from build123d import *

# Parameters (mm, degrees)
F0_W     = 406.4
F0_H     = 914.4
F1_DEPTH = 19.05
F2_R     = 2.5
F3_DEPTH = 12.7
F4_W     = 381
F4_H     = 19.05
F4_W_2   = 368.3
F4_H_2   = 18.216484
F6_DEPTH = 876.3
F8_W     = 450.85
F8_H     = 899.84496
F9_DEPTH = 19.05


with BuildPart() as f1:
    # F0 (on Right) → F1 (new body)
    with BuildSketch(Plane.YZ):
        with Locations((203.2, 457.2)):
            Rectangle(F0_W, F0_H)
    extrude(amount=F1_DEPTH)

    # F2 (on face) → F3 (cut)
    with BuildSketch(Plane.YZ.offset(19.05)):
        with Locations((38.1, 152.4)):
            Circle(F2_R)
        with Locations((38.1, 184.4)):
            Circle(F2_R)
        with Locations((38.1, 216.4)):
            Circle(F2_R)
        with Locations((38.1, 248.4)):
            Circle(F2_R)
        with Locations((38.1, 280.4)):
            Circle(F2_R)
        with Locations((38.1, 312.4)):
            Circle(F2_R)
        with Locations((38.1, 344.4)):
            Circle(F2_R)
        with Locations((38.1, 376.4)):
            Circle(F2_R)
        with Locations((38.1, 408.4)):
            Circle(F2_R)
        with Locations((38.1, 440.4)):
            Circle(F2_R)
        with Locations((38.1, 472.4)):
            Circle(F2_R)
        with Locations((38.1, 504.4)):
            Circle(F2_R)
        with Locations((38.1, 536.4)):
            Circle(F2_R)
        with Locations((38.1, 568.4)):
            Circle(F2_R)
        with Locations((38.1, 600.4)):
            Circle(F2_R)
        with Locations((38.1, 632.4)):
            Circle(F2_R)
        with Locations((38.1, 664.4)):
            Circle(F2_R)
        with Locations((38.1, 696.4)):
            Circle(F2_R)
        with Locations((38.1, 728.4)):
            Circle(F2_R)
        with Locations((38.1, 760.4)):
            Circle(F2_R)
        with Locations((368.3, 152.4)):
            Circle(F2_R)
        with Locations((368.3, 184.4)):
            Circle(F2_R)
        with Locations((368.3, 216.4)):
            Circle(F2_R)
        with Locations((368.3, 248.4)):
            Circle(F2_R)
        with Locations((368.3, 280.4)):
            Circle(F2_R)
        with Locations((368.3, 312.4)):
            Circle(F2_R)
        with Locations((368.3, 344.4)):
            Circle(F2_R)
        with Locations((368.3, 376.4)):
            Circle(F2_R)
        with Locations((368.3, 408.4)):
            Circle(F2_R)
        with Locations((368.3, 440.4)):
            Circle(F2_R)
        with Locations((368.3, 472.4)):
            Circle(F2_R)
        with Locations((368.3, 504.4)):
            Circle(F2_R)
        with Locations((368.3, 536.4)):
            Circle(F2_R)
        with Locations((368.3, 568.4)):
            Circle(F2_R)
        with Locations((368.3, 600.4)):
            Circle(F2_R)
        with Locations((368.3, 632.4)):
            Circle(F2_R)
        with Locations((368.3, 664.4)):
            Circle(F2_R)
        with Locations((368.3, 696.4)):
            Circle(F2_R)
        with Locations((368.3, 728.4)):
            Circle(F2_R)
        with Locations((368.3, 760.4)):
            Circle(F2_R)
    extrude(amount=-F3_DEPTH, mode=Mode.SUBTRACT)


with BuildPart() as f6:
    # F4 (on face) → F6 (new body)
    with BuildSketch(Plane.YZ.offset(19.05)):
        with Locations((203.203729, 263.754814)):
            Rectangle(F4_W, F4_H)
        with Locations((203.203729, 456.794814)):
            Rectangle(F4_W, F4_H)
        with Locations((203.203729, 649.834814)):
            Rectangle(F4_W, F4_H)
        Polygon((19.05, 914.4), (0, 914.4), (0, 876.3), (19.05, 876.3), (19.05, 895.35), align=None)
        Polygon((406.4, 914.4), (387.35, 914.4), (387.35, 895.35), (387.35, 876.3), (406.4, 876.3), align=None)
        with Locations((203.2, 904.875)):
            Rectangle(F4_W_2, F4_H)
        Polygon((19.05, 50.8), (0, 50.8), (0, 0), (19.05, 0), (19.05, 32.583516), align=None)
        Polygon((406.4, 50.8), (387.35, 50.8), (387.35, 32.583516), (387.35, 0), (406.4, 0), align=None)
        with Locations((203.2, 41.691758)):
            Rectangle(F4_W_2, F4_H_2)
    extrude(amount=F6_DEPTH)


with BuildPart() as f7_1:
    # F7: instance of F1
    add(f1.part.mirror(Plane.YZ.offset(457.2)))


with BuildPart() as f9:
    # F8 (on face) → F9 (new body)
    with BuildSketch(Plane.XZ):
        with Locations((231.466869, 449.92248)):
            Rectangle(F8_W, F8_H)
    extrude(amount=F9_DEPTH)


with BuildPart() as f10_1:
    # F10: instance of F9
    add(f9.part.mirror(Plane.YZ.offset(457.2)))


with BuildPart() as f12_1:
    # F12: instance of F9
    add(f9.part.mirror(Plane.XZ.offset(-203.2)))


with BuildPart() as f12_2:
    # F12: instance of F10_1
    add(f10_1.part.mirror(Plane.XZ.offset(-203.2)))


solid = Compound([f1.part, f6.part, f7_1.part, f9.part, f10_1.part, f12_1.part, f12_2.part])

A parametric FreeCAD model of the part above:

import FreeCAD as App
import Part
import Sketcher
from FreeCAD import Vector
Q = App.Units.Quantity

doc = App.newDocument("Part")
body = doc.addObject("PartDesign::Body", "Body")

# Sketch on YZ plane
sketch1 = doc.addObject("Sketcher::SketchObject", "Sketch")
body.addObject(sketch1)
sketch1.AttachmentSupport = (doc.YZ_Plane, [""])
sketch1.MapMode = "FlatFace"
sketch1.addGeometry(Part.LineSegment(Vector(0, 914, 0), Vector(0, 0, 0)), False)
sketch1.addGeometry(Part.LineSegment(Vector(0, 0, 0), Vector(406, 0, 0)), False)
sketch1.addGeometry(Part.LineSegment(Vector(406, 0, 0), Vector(406, 914, 0)), False)
sketch1.addGeometry(Part.LineSegment(Vector(406, 914, 0), Vector(0, 914, 0)), False)
sketch1.addConstraint(Sketcher.Constraint("Coincident", 0, 2, 1, 1))
sketch1.addConstraint(Sketcher.Constraint("Coincident", 1, 2, 2, 1))
sketch1.addConstraint(Sketcher.Constraint("Coincident", 2, 2, 3, 1))
sketch1.addConstraint(Sketcher.Constraint("Coincident", 3, 2, 0, 1))
sketch1.addConstraint(Sketcher.Constraint("Vertical", 0))
sketch1.addConstraint(Sketcher.Constraint("Horizontal", 1))
sketch1.addConstraint(Sketcher.Constraint("Vertical", 2))
sketch1.addConstraint(Sketcher.Constraint("Horizontal", 3))
sketch1.addConstraint(Sketcher.Constraint("Coincident", 0, 2, -1, 1))
sketch1.addConstraint(Sketcher.Constraint("DistanceX", 1, 1, 1, 2, Q("16 in")))
sketch1.addConstraint(Sketcher.Constraint("DistanceY", 0, 2, 0, 1, Q("36 in")))
pad1 = doc.addObject("PartDesign::Pad", "Pad")
body.addObject(pad1)
pad1.Profile = sketch1
pad1.Length = Q("0.75 in")

# Sketch on YZ plane
sketch2 = doc.addObject("Sketcher::SketchObject", "Sketch001")
body.addObject(sketch2)
sketch2.AttachmentSupport = (doc.YZ_Plane, [""])
sketch2.MapMode = "FlatFace"
sketch2.AttachmentOffset = App.Placement(Vector(0, 0, 0.75 * 25.4), App.Rotation())
sketch2.addGeometry(Part.Circle(Vector(38.1, 152.4, 0), Vector(0, 0, 1), 2.5), False)
sketch2.addGeometry(Part.Circle(Vector(38.1, 184.4, 0), Vector(0, 0, 1), 2.5), False)
sketch2.addGeometry(Part.Circle(Vector(38.1, 216.4, 0), Vector(0, 0, 1), 2.5), False)
sketch2.addGeometry(Part.Circle(Vector(38.1, 248.4, 0), Vector(0, 0, 1), 2.5), False)
sketch2.addGeometry(Part.Circle(Vector(38.1, 280.4, 0), Vector(0, 0, 1), 2.5), False)
sketch2.addGeometry(Part.Circle(Vector(38.1, 312.4, 0), Vector(0, 0, 1), 2.5), False)
sketch2.addGeometry(Part.Circle(Vector(38.1, 344.4, 0), Vector(0, 0, 1), 2.5), False)
sketch2.addGeometry(Part.Circle(Vector(38.1, 376.4, 0), Vector(0, 0, 1), 2.5), False)
sketch2.addGeometry(Part.Circle(Vector(38.1, 408.4, 0), Vector(0, 0, 1), 2.5), False)
sketch2.addGeometry(Part.Circle(Vector(38.1, 440.4, 0), Vector(0, 0, 1), 2.5), False)
sketch2.addGeometry(Part.Circle(Vector(38.1, 472.4, 0), Vector(0, 0, 1), 2.5), False)
sketch2.addGeometry(Part.Circle(Vector(38.1, 504.4, 0), Vector(0, 0, 1), 2.5), False)
sketch2.addGeometry(Part.Circle(Vector(38.1, 536.4, 0), Vector(0, 0, 1), 2.5), False)
sketch2.addGeometry(Part.Circle(Vector(38.1, 568.4, 0), Vector(0, 0, 1), 2.5), False)
sketch2.addGeometry(Part.Circle(Vector(38.1, 600.4, 0), Vector(0, 0, 1), 2.5), False)
sketch2.addGeometry(Part.Circle(Vector(38.1, 632.4, 0), Vector(0, 0, 1), 2.5), False)
sketch2.addGeometry(Part.Circle(Vector(38.1, 664.4, 0), Vector(0, 0, 1), 2.5), False)
sketch2.addGeometry(Part.Circle(Vector(38.1, 696.4, 0), Vector(0, 0, 1), 2.5), False)
sketch2.addGeometry(Part.Circle(Vector(38.1, 728.4, 0), Vector(0, 0, 1), 2.5), False)
sketch2.addGeometry(Part.Circle(Vector(38.1, 760.4, 0), Vector(0, 0, 1), 2.5), False)
sketch2.addGeometry(Part.Circle(Vector(368.3, 152.4, 0), Vector(0, 0, 1), 2.5), False)
sketch2.addGeometry(Part.Circle(Vector(368.3, 184.4, 0), Vector(0, 0, 1), 2.5), False)
sketch2.addGeometry(Part.Circle(Vector(368.3, 216.4, 0), Vector(0, 0, 1), 2.5), False)
sketch2.addGeometry(Part.Circle(Vector(368.3, 248.4, 0), Vector(0, 0, 1), 2.5), False)
sketch2.addGeometry(Part.Circle(Vector(368.3, 280.4, 0), Vector(0, 0, 1), 2.5), False)
sketch2.addGeometry(Part.Circle(Vector(368.3, 312.4, 0), Vector(0, 0, 1), 2.5), False)
sketch2.addGeometry(Part.Circle(Vector(368.3, 344.4, 0), Vector(0, 0, 1), 2.5), False)
sketch2.addGeometry(Part.Circle(Vector(368.3, 376.4, 0), Vector(0, 0, 1), 2.5), False)
sketch2.addGeometry(Part.Circle(Vector(368.3, 408.4, 0), Vector(0, 0, 1), 2.5), False)
sketch2.addGeometry(Part.Circle(Vector(368.3, 440.4, 0), Vector(0, 0, 1), 2.5), False)
sketch2.addGeometry(Part.Circle(Vector(368.3, 472.4, 0), Vector(0, 0, 1), 2.5), False)
sketch2.addGeometry(Part.Circle(Vector(368.3, 504.4, 0), Vector(0, 0, 1), 2.5), False)
sketch2.addGeometry(Part.Circle(Vector(368.3, 536.4, 0), Vector(0, 0, 1), 2.5), False)
sketch2.addGeometry(Part.Circle(Vector(368.3, 568.4, 0), Vector(0, 0, 1), 2.5), False)
sketch2.addGeometry(Part.Circle(Vector(368.3, 600.4, 0), Vector(0, 0, 1), 2.5), False)
sketch2.addGeometry(Part.Circle(Vector(368.3, 632.4, 0), Vector(0, 0, 1), 2.5), False)
sketch2.addGeometry(Part.Circle(Vector(368.3, 664.4, 0), Vector(0, 0, 1), 2.5), False)
sketch2.addGeometry(Part.Circle(Vector(368.3, 696.4, 0), Vector(0, 0, 1), 2.5), False)
sketch2.addGeometry(Part.Circle(Vector(368.3, 728.4, 0), Vector(0, 0, 1), 2.5), False)
sketch2.addGeometry(Part.Circle(Vector(368.3, 760.4, 0), Vector(0, 0, 1), 2.5), False)
sketch2.addConstraint(Sketcher.Constraint("Equal", 0, 1))
sketch2.addConstraint(Sketcher.Constraint("Equal", 1, 2))
sketch2.addConstraint(Sketcher.Constraint("Equal", 2, 3))
sketch2.addConstraint(Sketcher.Constraint("Equal", 3, 4))
sketch2.addConstraint(Sketcher.Constraint("Equal", 4, 5))
sketch2.addConstraint(Sketcher.Constraint("Equal", 5, 6))
sketch2.addConstraint(Sketcher.Constraint("Equal", 6, 7))
sketch2.addConstraint(Sketcher.Constraint("Equal", 7, 8))
sketch2.addConstraint(Sketcher.Constraint("Equal", 8, 9))
sketch2.addConstraint(Sketcher.Constraint("Equal", 9, 10))
sketch2.addConstraint(Sketcher.Constraint("Equal", 10, 11))
sketch2.addConstraint(Sketcher.Constraint("Equal", 11, 12))
sketch2.addConstraint(Sketcher.Constraint("Equal", 12, 13))
sketch2.addConstraint(Sketcher.Constraint("Equal", 13, 14))
sketch2.addConstraint(Sketcher.Constraint("Equal", 14, 15))
sketch2.addConstraint(Sketcher.Constraint("Equal", 15, 16))
sketch2.addConstraint(Sketcher.Constraint("Equal", 16, 17))
sketch2.addConstraint(Sketcher.Constraint("Equal", 17, 18))
sketch2.addConstraint(Sketcher.Constraint("Equal", 18, 19))
sketch2.addConstraint(Sketcher.Constraint("Equal", 19, 20))
sketch2.addConstraint(Sketcher.Constraint("Equal", 20, 21))
sketch2.addConstraint(Sketcher.Constraint("Equal", 21, 22))
sketch2.addConstraint(Sketcher.Constraint("Equal", 22, 23))
sketch2.addConstraint(Sketcher.Constraint("Equal", 23, 24))
sketch2.addConstraint(Sketcher.Constraint("Equal", 24, 25))
sketch2.addConstraint(Sketcher.Constraint("Equal", 25, 26))
sketch2.addConstraint(Sketcher.Constraint("Equal", 26, 27))
sketch2.addConstraint(Sketcher.Constraint("Equal", 27, 28))
sketch2.addConstraint(Sketcher.Constraint("Equal", 28, 29))
sketch2.addConstraint(Sketcher.Constraint("Equal", 29, 30))
sketch2.addConstraint(Sketcher.Constraint("Equal", 30, 31))
sketch2.addConstraint(Sketcher.Constraint("Equal", 31, 32))
sketch2.addConstraint(Sketcher.Constraint("Equal", 32, 33))
sketch2.addConstraint(Sketcher.Constraint("Equal", 33, 34))
sketch2.addConstraint(Sketcher.Constraint("Equal", 34, 35))
sketch2.addConstraint(Sketcher.Constraint("Equal", 35, 36))
sketch2.addConstraint(Sketcher.Constraint("Equal", 36, 37))
sketch2.addConstraint(Sketcher.Constraint("Equal", 37, 38))
sketch2.addConstraint(Sketcher.Constraint("Equal", 38, 39))
sketch2.addConstraint(Sketcher.Constraint("Horizontal", 0, 3, 20, 3))
sketch2.addConstraint(Sketcher.Constraint("Horizontal", 1, 3, 21, 3))
sketch2.addConstraint(Sketcher.Constraint("Horizontal", 2, 3, 22, 3))
sketch2.addConstraint(Sketcher.Constraint("Horizontal", 3, 3, 23, 3))
sketch2.addConstraint(Sketcher.Constraint("Horizontal", 4, 3, 24, 3))
sketch2.addConstraint(Sketcher.Constraint("Horizontal", 5, 3, 25, 3))
sketch2.addConstraint(Sketcher.Constraint("Horizontal", 6, 3, 26, 3))
sketch2.addConstraint(Sketcher.Constraint("Horizontal", 7, 3, 27, 3))
sketch2.addConstraint(Sketcher.Constraint("Horizontal", 8, 3, 28, 3))
sketch2.addConstraint(Sketcher.Constraint("Horizontal", 9, 3, 29, 3))
sketch2.addConstraint(Sketcher.Constraint("Horizontal", 10, 3, 30, 3))
sketch2.addConstraint(Sketcher.Constraint("Horizontal", 11, 3, 31, 3))
sketch2.addConstraint(Sketcher.Constraint("Horizontal", 12, 3, 32, 3))
sketch2.addConstraint(Sketcher.Constraint("Horizontal", 13, 3, 33, 3))
sketch2.addConstraint(Sketcher.Constraint("Horizontal", 14, 3, 34, 3))
sketch2.addConstraint(Sketcher.Constraint("Horizontal", 15, 3, 35, 3))
sketch2.addConstraint(Sketcher.Constraint("Horizontal", 16, 3, 36, 3))
sketch2.addConstraint(Sketcher.Constraint("Horizontal", 17, 3, 37, 3))
sketch2.addConstraint(Sketcher.Constraint("Horizontal", 18, 3, 38, 3))
sketch2.addConstraint(Sketcher.Constraint("Horizontal", 19, 3, 39, 3))
sketch2.addConstraint(Sketcher.Constraint("Vertical", 0, 3, 1, 3))
sketch2.addConstraint(Sketcher.Constraint("Vertical", 1, 3, 2, 3))
sketch2.addConstraint(Sketcher.Constraint("Vertical", 2, 3, 3, 3))
sketch2.addConstraint(Sketcher.Constraint("Vertical", 3, 3, 4, 3))
sketch2.addConstraint(Sketcher.Constraint("Vertical", 4, 3, 5, 3))
sketch2.addConstraint(Sketcher.Constraint("Vertical", 5, 3, 6, 3))
sketch2.addConstraint(Sketcher.Constraint("Vertical", 6, 3, 7, 3))
sketch2.addConstraint(Sketcher.Constraint("Vertical", 7, 3, 8, 3))
sketch2.addConstraint(Sketcher.Constraint("Vertical", 8, 3, 9, 3))
sketch2.addConstraint(Sketcher.Constraint("Vertical", 9, 3, 10, 3))
sketch2.addConstraint(Sketcher.Constraint("Vertical", 10, 3, 11, 3))
sketch2.addConstraint(Sketcher.Constraint("Vertical", 11, 3, 12, 3))
sketch2.addConstraint(Sketcher.Constraint("Vertical", 12, 3, 13, 3))
sketch2.addConstraint(Sketcher.Constraint("Vertical", 13, 3, 14, 3))
sketch2.addConstraint(Sketcher.Constraint("Vertical", 14, 3, 15, 3))
sketch2.addConstraint(Sketcher.Constraint("Vertical", 15, 3, 16, 3))
sketch2.addConstraint(Sketcher.Constraint("Vertical", 16, 3, 17, 3))
sketch2.addConstraint(Sketcher.Constraint("Vertical", 17, 3, 18, 3))
sketch2.addConstraint(Sketcher.Constraint("Vertical", 18, 3, 19, 3))
sketch2.addConstraint(Sketcher.Constraint("Vertical", 20, 3, 21, 3))
sketch2.addConstraint(Sketcher.Constraint("Vertical", 21, 3, 22, 3))
sketch2.addConstraint(Sketcher.Constraint("Vertical", 22, 3, 23, 3))
sketch2.addConstraint(Sketcher.Constraint("Vertical", 23, 3, 24, 3))
sketch2.addConstraint(Sketcher.Constraint("Vertical", 24, 3, 25, 3))
sketch2.addConstraint(Sketcher.Constraint("Vertical", 25, 3, 26, 3))
sketch2.addConstraint(Sketcher.Constraint("Vertical", 26, 3, 27, 3))
sketch2.addConstraint(Sketcher.Constraint("Vertical", 27, 3, 28, 3))
sketch2.addConstraint(Sketcher.Constraint("Vertical", 28, 3, 29, 3))
sketch2.addConstraint(Sketcher.Constraint("Vertical", 29, 3, 30, 3))
sketch2.addConstraint(Sketcher.Constraint("Vertical", 30, 3, 31, 3))
sketch2.addConstraint(Sketcher.Constraint("Vertical", 31, 3, 32, 3))
sketch2.addConstraint(Sketcher.Constraint("Vertical", 32, 3, 33, 3))
sketch2.addConstraint(Sketcher.Constraint("Vertical", 33, 3, 34, 3))
sketch2.addConstraint(Sketcher.Constraint("Vertical", 34, 3, 35, 3))
sketch2.addConstraint(Sketcher.Constraint("Vertical", 35, 3, 36, 3))
sketch2.addConstraint(Sketcher.Constraint("Vertical", 36, 3, 37, 3))
sketch2.addConstraint(Sketcher.Constraint("Vertical", 37, 3, 38, 3))
sketch2.addConstraint(Sketcher.Constraint("Vertical", 38, 3, 39, 3))
sketch2.addConstraint(Sketcher.Constraint("DistanceY", -1, 1, 0, 3, Q("6 in")))
sketch2.addConstraint(Sketcher.Constraint("DistanceX", 0, 3, 20, 3, Q("13 in")))
sketch2.addConstraint(Sketcher.Constraint("DistanceX", -1, 1, 0, 3, Q("1.5 in")))
sketch2.addConstraint(Sketcher.Constraint("Diameter", 0, 5.0))
sketch2.addConstraint(Sketcher.Constraint("DistanceY", -1, 1, 1, 3, 184.4))
sketch2.addConstraint(Sketcher.Constraint("DistanceY", -1, 1, 2, 3, 216.4))
sketch2.addConstraint(Sketcher.Constraint("DistanceY", -1, 1, 3, 3, 248.4))
sketch2.addConstraint(Sketcher.Constraint("DistanceY", -1, 1, 4, 3, 280.4))
sketch2.addConstraint(Sketcher.Constraint("DistanceY", -1, 1, 5, 3, 312.4))
sketch2.addConstraint(Sketcher.Constraint("DistanceY", -1, 1, 6, 3, 344.4))
sketch2.addConstraint(Sketcher.Constraint("DistanceY", -1, 1, 7, 3, 376.4))
sketch2.addConstraint(Sketcher.Constraint("DistanceY", -1, 1, 8, 3, 408.4))
sketch2.addConstraint(Sketcher.Constraint("DistanceY", -1, 1, 9, 3, 440.4))
sketch2.addConstraint(Sketcher.Constraint("DistanceY", -1, 1, 10, 3, 472.4))
sketch2.addConstraint(Sketcher.Constraint("DistanceY", -1, 1, 11, 3, 504.4))
sketch2.addConstraint(Sketcher.Constraint("DistanceY", -1, 1, 12, 3, 536.4))
sketch2.addConstraint(Sketcher.Constraint("DistanceY", -1, 1, 13, 3, 568.4))
sketch2.addConstraint(Sketcher.Constraint("DistanceY", -1, 1, 14, 3, 600.4))
sketch2.addConstraint(Sketcher.Constraint("DistanceY", -1, 1, 15, 3, 632.4))
sketch2.addConstraint(Sketcher.Constraint("DistanceY", -1, 1, 16, 3, 664.4))
sketch2.addConstraint(Sketcher.Constraint("DistanceY", -1, 1, 17, 3, 696.4))
sketch2.addConstraint(Sketcher.Constraint("DistanceY", -1, 1, 18, 3, 728.4))
sketch2.addConstraint(Sketcher.Constraint("DistanceY", -1, 1, 19, 3, 760.4))
pocket1 = doc.addObject("PartDesign::Pocket", "Pocket")
body.addObject(pocket1)
pocket1.Profile = sketch2
pocket1.Length = Q("0.5 in")
body2 = doc.addObject("PartDesign::Body", "Body001")
body2.AllowCompound = True

# Sketch on YZ plane
sketch3 = doc.addObject("Sketcher::SketchObject", "Sketch002")
body2.addObject(sketch3)
sketch3.AttachmentSupport = (doc.getObject("YZ_Plane001"), [""])
sketch3.MapMode = "FlatFace"
sketch3.AttachmentOffset = App.Placement(Vector(0, 0, 0.75 * 25.4), App.Rotation())
sketch3.addGeometry(Part.LineSegment(Vector(13, 273, 0), Vector(13, 254, 0)), False)
sketch3.addGeometry(Part.LineSegment(Vector(13, 254, 0), Vector(394, 254, 0)), False)
sketch3.addGeometry(Part.LineSegment(Vector(394, 254, 0), Vector(394, 273, 0)), False)
sketch3.addGeometry(Part.LineSegment(Vector(394, 273, 0), Vector(13, 273, 0)), False)
sketch3.addGeometry(Part.LineSegment(Vector(13, 466, 0), Vector(13, 447, 0)), False)
sketch3.addGeometry(Part.LineSegment(Vector(13, 447, 0), Vector(394, 447, 0)), False)
sketch3.addGeometry(Part.LineSegment(Vector(394, 447, 0), Vector(394, 466, 0)), False)
sketch3.addGeometry(Part.LineSegment(Vector(394, 466, 0), Vector(13, 466, 0)), False)
sketch3.addGeometry(Part.LineSegment(Vector(13, 659, 0), Vector(13, 640, 0)), False)
sketch3.addGeometry(Part.LineSegment(Vector(13, 640, 0), Vector(394, 640, 0)), False)
sketch3.addGeometry(Part.LineSegment(Vector(394, 640, 0), Vector(394, 659, 0)), False)
sketch3.addGeometry(Part.LineSegment(Vector(394, 659, 0), Vector(13, 659, 0)), False)
sketch3.addGeometry(Part.LineSegment(Vector(0, 914, 0), Vector(0, 876, 0)), False)
sketch3.addGeometry(Part.LineSegment(Vector(0, 876, 0), Vector(19, 876, 0)), False)
sketch3.addGeometry(Part.LineSegment(Vector(19, 876, 0), Vector(19, 895, 0)), False)
sketch3.addGeometry(Part.LineSegment(Vector(19, 895, 0), Vector(387, 895, 0)), False)
sketch3.addGeometry(Part.LineSegment(Vector(387, 895, 0), Vector(387, 876, 0)), False)
sketch3.addGeometry(Part.LineSegment(Vector(387, 876, 0), Vector(406, 876, 0)), False)
sketch3.addGeometry(Part.LineSegment(Vector(406, 876, 0), Vector(406, 914, 0)), False)
sketch3.addGeometry(Part.LineSegment(Vector(406, 914, 0), Vector(0, 914, 0)), False)
sketch3.addGeometry(Part.LineSegment(Vector(0, 51, 0), Vector(0, 0, 0)), False)
sketch3.addGeometry(Part.LineSegment(Vector(0, 0, 0), Vector(19, 0, 0)), False)
sketch3.addGeometry(Part.LineSegment(Vector(19, 0, 0), Vector(19, 33, 0)), False)
sketch3.addGeometry(Part.LineSegment(Vector(19, 33, 0), Vector(387, 33, 0)), False)
sketch3.addGeometry(Part.LineSegment(Vector(387, 33, 0), Vector(387, 0, 0)), False)
sketch3.addGeometry(Part.LineSegment(Vector(387, 0, 0), Vector(406, 0, 0)), False)
sketch3.addGeometry(Part.LineSegment(Vector(406, 0, 0), Vector(406, 51, 0)), False)
sketch3.addGeometry(Part.LineSegment(Vector(406, 51, 0), Vector(0, 51, 0)), False)
sketch3.addConstraint(Sketcher.Constraint("Coincident", 0, 2, 1, 1))
sketch3.addConstraint(Sketcher.Constraint("Coincident", 1, 2, 2, 1))
sketch3.addConstraint(Sketcher.Constraint("Coincident", 2, 2, 3, 1))
sketch3.addConstraint(Sketcher.Constraint("Coincident", 3, 2, 0, 1))
sketch3.addConstraint(Sketcher.Constraint("Coincident", 4, 2, 5, 1))
sketch3.addConstraint(Sketcher.Constraint("Coincident", 5, 2, 6, 1))
sketch3.addConstraint(Sketcher.Constraint("Coincident", 6, 2, 7, 1))
sketch3.addConstraint(Sketcher.Constraint("Coincident", 7, 2, 4, 1))
sketch3.addConstraint(Sketcher.Constraint("Coincident", 8, 2, 9, 1))
sketch3.addConstraint(Sketcher.Constraint("Coincident", 9, 2, 10, 1))
sketch3.addConstraint(Sketcher.Constraint("Coincident", 10, 2, 11, 1))
sketch3.addConstraint(Sketcher.Constraint("Coincident", 11, 2, 8, 1))
sketch3.addConstraint(Sketcher.Constraint("Coincident", 12, 2, 13, 1))
sketch3.addConstraint(Sketcher.Constraint("Coincident", 13, 2, 14, 1))
sketch3.addConstraint(Sketcher.Constraint("Coincident", 14, 2, 15, 1))
sketch3.addConstraint(Sketcher.Constraint("Coincident", 15, 2, 16, 1))
sketch3.addConstraint(Sketcher.Constraint("Coincident", 16, 2, 17, 1))
sketch3.addConstraint(Sketcher.Constraint("Coincident", 17, 2, 18, 1))
sketch3.addConstraint(Sketcher.Constraint("Coincident", 18, 2, 19, 1))
sketch3.addConstraint(Sketcher.Constraint("Coincident", 19, 2, 12, 1))
sketch3.addConstraint(Sketcher.Constraint("Coincident", 20, 2, 21, 1))
sketch3.addConstraint(Sketcher.Constraint("Coincident", 21, 2, 22, 1))
sketch3.addConstraint(Sketcher.Constraint("Coincident", 22, 2, 23, 1))
sketch3.addConstraint(Sketcher.Constraint("Coincident", 23, 2, 24, 1))
sketch3.addConstraint(Sketcher.Constraint("Coincident", 24, 2, 25, 1))
sketch3.addConstraint(Sketcher.Constraint("Coincident", 25, 2, 26, 1))
sketch3.addConstraint(Sketcher.Constraint("Coincident", 26, 2, 27, 1))
sketch3.addConstraint(Sketcher.Constraint("Coincident", 27, 2, 20, 1))
sketch3.addConstraint(Sketcher.Constraint("Vertical", 0))
sketch3.addConstraint(Sketcher.Constraint("Horizontal", 1))
sketch3.addConstraint(Sketcher.Constraint("Vertical", 2))
sketch3.addConstraint(Sketcher.Constraint("Horizontal", 3))
sketch3.addConstraint(Sketcher.Constraint("Vertical", 4))
sketch3.addConstraint(Sketcher.Constraint("Horizontal", 5))
sketch3.addConstraint(Sketcher.Constraint("Vertical", 6))
sketch3.addConstraint(Sketcher.Constraint("Horizontal", 7))
sketch3.addConstraint(Sketcher.Constraint("Vertical", 8))
sketch3.addConstraint(Sketcher.Constraint("Horizontal", 9))
sketch3.addConstraint(Sketcher.Constraint("Vertical", 10))
sketch3.addConstraint(Sketcher.Constraint("Horizontal", 11))
sketch3.addConstraint(Sketcher.Constraint("Vertical", 12))
sketch3.addConstraint(Sketcher.Constraint("Horizontal", 13))
sketch3.addConstraint(Sketcher.Constraint("Vertical", 14))
sketch3.addConstraint(Sketcher.Constraint("Horizontal", 15))
sketch3.addConstraint(Sketcher.Constraint("Vertical", 16))
sketch3.addConstraint(Sketcher.Constraint("Horizontal", 17))
sketch3.addConstraint(Sketcher.Constraint("Vertical", 18))
sketch3.addConstraint(Sketcher.Constraint("Horizontal", 19))
sketch3.addConstraint(Sketcher.Constraint("Vertical", 20))
sketch3.addConstraint(Sketcher.Constraint("Horizontal", 21))
sketch3.addConstraint(Sketcher.Constraint("Vertical", 22))
sketch3.addConstraint(Sketcher.Constraint("Horizontal", 23))
sketch3.addConstraint(Sketcher.Constraint("Vertical", 24))
sketch3.addConstraint(Sketcher.Constraint("Horizontal", 25))
sketch3.addConstraint(Sketcher.Constraint("Vertical", 26))
sketch3.addConstraint(Sketcher.Constraint("Horizontal", 27))
sketch3.addConstraint(Sketcher.Constraint("Coincident", 20, 2, -1, 1))
sketch3.addConstraint(Sketcher.Constraint("PointOnObject", 12, 2, -2))
sketch3.addConstraint(Sketcher.Constraint("PointOnObject", 24, 2, -1))
sketch3.addConstraint(Sketcher.Constraint("Horizontal", 13, 2, 16, 2))
sketch3.addConstraint(Sketcher.Constraint("Vertical", 3, 2, 4, 2))
sketch3.addConstraint(Sketcher.Constraint("Vertical", 2, 2, 5, 2))
sketch3.addConstraint(Sketcher.Constraint("Vertical", 7, 2, 8, 2))
sketch3.addConstraint(Sketcher.Constraint("Vertical", 6, 2, 9, 2))
sketch3.addConstraint(Sketcher.Constraint("Vertical", 14, 2, 21, 2))
sketch3.addConstraint(Sketcher.Constraint("Vertical", 16, 2, 23, 2))
sketch3.addConstraint(Sketcher.Constraint("Vertical", 18, 2, 25, 2))
sketch3.addConstraint(Sketcher.Constraint("Equal", 13, 17))
sketch3.addConstraint(Sketcher.Constraint("Equal", 25, 0))
sketch3.addConstraint(Sketcher.Constraint("Equal", 2, 4))
sketch3.addConstraint(Sketcher.Constraint("Equal", 6, 8))
sketch3.addConstraint(Sketcher.Constraint("Equal", 10, 14))
sketch3.addConstraint(Sketcher.Constraint("DistanceX", 1, 1, 1, 2, Q("15 in")))
sketch3.addConstraint(Sketcher.Constraint("DistanceX", 19, 2, 19, 1, Q("16 in")))
sketch3.addConstraint(Sketcher.Constraint("DistanceY", 20, 2, 20, 1, Q("2 in")))
sketch3.addConstraint(Sketcher.Constraint("DistanceX", 15, 1, 15, 2, Q("14.5 in")))
sketch3.addConstraint(Sketcher.Constraint("DistanceY", 12, 2, 12, 1, Q("1.5 in")))
sketch3.addConstraint(Sketcher.Constraint("DistanceY", -1, 1, 18, 2, Q("36 in")))
sketch3.addConstraint(Sketcher.Constraint("DistanceY", 0, 2, 4, 2, Q("7.6 in")))
sketch3.addConstraint(Sketcher.Constraint("DistanceY", 4, 2, 8, 2, Q("7.6 in")))
sketch3.addConstraint(Sketcher.Constraint("DistanceY", 22, 2, 0, 2, 221.646298))
sketch3.addConstraint(Sketcher.Constraint("DistanceY", 22, 1, 22, 2, 32.583516))
sketch3.addConstraint(Sketcher.Constraint("DistanceX", -1, 1, 0, 2, 12.703729))
pad2 = doc.addObject("PartDesign::Pad", "Pad001")
body2.addObject(pad2)
pad2.Profile = sketch3
pad2.Length = Q("34.5 in")
body3 = doc.addObject("PartDesign::Body", "Body002")
doc.recompute()

mirroring = doc.addObject("Part::Mirroring", "Mirroring")
mirroring.Source = body
mirroring.Base = Vector(457.2, 0, 0)
mirroring.Normal = Vector(1, 0, 0)
body3.BaseFeature = mirroring
doc.recompute()
body4 = doc.addObject("PartDesign::Body", "Body003")

# Sketch on XZ plane
sketch4 = doc.addObject("Sketcher::SketchObject", "Sketch003")
body4.addObject(sketch4)
sketch4.AttachmentSupport = (doc.getObject("XZ_Plane003"), [""])
sketch4.MapMode = "FlatFace"
sketch4.addGeometry(Part.LineSegment(Vector(6, 900, 0), Vector(6, 0, 0)), False)
sketch4.addGeometry(Part.LineSegment(Vector(6, 0, 0), Vector(457, 0, 0)), False)
sketch4.addGeometry(Part.LineSegment(Vector(457, 0, 0), Vector(457, 900, 0)), False)
sketch4.addGeometry(Part.LineSegment(Vector(457, 900, 0), Vector(6, 900, 0)), False)
sketch4.addConstraint(Sketcher.Constraint("Coincident", 0, 2, 1, 1))
sketch4.addConstraint(Sketcher.Constraint("Coincident", 1, 2, 2, 1))
sketch4.addConstraint(Sketcher.Constraint("Coincident", 2, 2, 3, 1))
sketch4.addConstraint(Sketcher.Constraint("Coincident", 3, 2, 0, 1))
sketch4.addConstraint(Sketcher.Constraint("Vertical", 0))
sketch4.addConstraint(Sketcher.Constraint("Horizontal", 1))
sketch4.addConstraint(Sketcher.Constraint("Vertical", 2))
sketch4.addConstraint(Sketcher.Constraint("Horizontal", 3))
sketch4.addConstraint(Sketcher.Constraint("PointOnObject", 0, 2, -1))
sketch4.addConstraint(Sketcher.Constraint("DistanceX", 1, 1, 1, 2, Q("17.75 in")))
sketch4.addConstraint(Sketcher.Constraint("DistanceY", 0, 2, 0, 1, 899.84496))
sketch4.addConstraint(Sketcher.Constraint("DistanceX", -1, 1, 0, 2, 6.041869))
pad3 = doc.addObject("PartDesign::Pad", "Pad002")
body4.addObject(pad3)
pad3.Profile = sketch4
pad3.Length = Q("0.75 in")
body5 = doc.addObject("PartDesign::Body", "Body004")
doc.recompute()

mirroring2 = doc.addObject("Part::Mirroring", "Mirroring001")
mirroring2.Source = body4
mirroring2.Base = Vector(457.2, 0, 0)
mirroring2.Normal = Vector(1, 0, 0)
body5.BaseFeature = mirroring2
doc.recompute()
body6 = doc.addObject("PartDesign::Body", "Body005")
doc.recompute()

mirroring3 = doc.addObject("Part::Mirroring", "Mirroring002")
mirroring3.Source = body4
mirroring3.Base = Vector(0, 203.2, 0)
mirroring3.Normal = Vector(0, -1, 0)
body6.BaseFeature = mirroring3
doc.recompute()
body7 = doc.addObject("PartDesign::Body", "Body006")
doc.recompute()

mirroring4 = doc.addObject("Part::Mirroring", "Mirroring003")
mirroring4.Source = body5
mirroring4.Base = Vector(0, 203.2, 0)
mirroring4.Normal = Vector(0, -1, 0)
body7.BaseFeature = mirroring4
doc.recompute()
mirroring.Visibility = False
mirroring2.Visibility = False
mirroring3.Visibility = False
mirroring4.Visibility = False

doc.recompute()
